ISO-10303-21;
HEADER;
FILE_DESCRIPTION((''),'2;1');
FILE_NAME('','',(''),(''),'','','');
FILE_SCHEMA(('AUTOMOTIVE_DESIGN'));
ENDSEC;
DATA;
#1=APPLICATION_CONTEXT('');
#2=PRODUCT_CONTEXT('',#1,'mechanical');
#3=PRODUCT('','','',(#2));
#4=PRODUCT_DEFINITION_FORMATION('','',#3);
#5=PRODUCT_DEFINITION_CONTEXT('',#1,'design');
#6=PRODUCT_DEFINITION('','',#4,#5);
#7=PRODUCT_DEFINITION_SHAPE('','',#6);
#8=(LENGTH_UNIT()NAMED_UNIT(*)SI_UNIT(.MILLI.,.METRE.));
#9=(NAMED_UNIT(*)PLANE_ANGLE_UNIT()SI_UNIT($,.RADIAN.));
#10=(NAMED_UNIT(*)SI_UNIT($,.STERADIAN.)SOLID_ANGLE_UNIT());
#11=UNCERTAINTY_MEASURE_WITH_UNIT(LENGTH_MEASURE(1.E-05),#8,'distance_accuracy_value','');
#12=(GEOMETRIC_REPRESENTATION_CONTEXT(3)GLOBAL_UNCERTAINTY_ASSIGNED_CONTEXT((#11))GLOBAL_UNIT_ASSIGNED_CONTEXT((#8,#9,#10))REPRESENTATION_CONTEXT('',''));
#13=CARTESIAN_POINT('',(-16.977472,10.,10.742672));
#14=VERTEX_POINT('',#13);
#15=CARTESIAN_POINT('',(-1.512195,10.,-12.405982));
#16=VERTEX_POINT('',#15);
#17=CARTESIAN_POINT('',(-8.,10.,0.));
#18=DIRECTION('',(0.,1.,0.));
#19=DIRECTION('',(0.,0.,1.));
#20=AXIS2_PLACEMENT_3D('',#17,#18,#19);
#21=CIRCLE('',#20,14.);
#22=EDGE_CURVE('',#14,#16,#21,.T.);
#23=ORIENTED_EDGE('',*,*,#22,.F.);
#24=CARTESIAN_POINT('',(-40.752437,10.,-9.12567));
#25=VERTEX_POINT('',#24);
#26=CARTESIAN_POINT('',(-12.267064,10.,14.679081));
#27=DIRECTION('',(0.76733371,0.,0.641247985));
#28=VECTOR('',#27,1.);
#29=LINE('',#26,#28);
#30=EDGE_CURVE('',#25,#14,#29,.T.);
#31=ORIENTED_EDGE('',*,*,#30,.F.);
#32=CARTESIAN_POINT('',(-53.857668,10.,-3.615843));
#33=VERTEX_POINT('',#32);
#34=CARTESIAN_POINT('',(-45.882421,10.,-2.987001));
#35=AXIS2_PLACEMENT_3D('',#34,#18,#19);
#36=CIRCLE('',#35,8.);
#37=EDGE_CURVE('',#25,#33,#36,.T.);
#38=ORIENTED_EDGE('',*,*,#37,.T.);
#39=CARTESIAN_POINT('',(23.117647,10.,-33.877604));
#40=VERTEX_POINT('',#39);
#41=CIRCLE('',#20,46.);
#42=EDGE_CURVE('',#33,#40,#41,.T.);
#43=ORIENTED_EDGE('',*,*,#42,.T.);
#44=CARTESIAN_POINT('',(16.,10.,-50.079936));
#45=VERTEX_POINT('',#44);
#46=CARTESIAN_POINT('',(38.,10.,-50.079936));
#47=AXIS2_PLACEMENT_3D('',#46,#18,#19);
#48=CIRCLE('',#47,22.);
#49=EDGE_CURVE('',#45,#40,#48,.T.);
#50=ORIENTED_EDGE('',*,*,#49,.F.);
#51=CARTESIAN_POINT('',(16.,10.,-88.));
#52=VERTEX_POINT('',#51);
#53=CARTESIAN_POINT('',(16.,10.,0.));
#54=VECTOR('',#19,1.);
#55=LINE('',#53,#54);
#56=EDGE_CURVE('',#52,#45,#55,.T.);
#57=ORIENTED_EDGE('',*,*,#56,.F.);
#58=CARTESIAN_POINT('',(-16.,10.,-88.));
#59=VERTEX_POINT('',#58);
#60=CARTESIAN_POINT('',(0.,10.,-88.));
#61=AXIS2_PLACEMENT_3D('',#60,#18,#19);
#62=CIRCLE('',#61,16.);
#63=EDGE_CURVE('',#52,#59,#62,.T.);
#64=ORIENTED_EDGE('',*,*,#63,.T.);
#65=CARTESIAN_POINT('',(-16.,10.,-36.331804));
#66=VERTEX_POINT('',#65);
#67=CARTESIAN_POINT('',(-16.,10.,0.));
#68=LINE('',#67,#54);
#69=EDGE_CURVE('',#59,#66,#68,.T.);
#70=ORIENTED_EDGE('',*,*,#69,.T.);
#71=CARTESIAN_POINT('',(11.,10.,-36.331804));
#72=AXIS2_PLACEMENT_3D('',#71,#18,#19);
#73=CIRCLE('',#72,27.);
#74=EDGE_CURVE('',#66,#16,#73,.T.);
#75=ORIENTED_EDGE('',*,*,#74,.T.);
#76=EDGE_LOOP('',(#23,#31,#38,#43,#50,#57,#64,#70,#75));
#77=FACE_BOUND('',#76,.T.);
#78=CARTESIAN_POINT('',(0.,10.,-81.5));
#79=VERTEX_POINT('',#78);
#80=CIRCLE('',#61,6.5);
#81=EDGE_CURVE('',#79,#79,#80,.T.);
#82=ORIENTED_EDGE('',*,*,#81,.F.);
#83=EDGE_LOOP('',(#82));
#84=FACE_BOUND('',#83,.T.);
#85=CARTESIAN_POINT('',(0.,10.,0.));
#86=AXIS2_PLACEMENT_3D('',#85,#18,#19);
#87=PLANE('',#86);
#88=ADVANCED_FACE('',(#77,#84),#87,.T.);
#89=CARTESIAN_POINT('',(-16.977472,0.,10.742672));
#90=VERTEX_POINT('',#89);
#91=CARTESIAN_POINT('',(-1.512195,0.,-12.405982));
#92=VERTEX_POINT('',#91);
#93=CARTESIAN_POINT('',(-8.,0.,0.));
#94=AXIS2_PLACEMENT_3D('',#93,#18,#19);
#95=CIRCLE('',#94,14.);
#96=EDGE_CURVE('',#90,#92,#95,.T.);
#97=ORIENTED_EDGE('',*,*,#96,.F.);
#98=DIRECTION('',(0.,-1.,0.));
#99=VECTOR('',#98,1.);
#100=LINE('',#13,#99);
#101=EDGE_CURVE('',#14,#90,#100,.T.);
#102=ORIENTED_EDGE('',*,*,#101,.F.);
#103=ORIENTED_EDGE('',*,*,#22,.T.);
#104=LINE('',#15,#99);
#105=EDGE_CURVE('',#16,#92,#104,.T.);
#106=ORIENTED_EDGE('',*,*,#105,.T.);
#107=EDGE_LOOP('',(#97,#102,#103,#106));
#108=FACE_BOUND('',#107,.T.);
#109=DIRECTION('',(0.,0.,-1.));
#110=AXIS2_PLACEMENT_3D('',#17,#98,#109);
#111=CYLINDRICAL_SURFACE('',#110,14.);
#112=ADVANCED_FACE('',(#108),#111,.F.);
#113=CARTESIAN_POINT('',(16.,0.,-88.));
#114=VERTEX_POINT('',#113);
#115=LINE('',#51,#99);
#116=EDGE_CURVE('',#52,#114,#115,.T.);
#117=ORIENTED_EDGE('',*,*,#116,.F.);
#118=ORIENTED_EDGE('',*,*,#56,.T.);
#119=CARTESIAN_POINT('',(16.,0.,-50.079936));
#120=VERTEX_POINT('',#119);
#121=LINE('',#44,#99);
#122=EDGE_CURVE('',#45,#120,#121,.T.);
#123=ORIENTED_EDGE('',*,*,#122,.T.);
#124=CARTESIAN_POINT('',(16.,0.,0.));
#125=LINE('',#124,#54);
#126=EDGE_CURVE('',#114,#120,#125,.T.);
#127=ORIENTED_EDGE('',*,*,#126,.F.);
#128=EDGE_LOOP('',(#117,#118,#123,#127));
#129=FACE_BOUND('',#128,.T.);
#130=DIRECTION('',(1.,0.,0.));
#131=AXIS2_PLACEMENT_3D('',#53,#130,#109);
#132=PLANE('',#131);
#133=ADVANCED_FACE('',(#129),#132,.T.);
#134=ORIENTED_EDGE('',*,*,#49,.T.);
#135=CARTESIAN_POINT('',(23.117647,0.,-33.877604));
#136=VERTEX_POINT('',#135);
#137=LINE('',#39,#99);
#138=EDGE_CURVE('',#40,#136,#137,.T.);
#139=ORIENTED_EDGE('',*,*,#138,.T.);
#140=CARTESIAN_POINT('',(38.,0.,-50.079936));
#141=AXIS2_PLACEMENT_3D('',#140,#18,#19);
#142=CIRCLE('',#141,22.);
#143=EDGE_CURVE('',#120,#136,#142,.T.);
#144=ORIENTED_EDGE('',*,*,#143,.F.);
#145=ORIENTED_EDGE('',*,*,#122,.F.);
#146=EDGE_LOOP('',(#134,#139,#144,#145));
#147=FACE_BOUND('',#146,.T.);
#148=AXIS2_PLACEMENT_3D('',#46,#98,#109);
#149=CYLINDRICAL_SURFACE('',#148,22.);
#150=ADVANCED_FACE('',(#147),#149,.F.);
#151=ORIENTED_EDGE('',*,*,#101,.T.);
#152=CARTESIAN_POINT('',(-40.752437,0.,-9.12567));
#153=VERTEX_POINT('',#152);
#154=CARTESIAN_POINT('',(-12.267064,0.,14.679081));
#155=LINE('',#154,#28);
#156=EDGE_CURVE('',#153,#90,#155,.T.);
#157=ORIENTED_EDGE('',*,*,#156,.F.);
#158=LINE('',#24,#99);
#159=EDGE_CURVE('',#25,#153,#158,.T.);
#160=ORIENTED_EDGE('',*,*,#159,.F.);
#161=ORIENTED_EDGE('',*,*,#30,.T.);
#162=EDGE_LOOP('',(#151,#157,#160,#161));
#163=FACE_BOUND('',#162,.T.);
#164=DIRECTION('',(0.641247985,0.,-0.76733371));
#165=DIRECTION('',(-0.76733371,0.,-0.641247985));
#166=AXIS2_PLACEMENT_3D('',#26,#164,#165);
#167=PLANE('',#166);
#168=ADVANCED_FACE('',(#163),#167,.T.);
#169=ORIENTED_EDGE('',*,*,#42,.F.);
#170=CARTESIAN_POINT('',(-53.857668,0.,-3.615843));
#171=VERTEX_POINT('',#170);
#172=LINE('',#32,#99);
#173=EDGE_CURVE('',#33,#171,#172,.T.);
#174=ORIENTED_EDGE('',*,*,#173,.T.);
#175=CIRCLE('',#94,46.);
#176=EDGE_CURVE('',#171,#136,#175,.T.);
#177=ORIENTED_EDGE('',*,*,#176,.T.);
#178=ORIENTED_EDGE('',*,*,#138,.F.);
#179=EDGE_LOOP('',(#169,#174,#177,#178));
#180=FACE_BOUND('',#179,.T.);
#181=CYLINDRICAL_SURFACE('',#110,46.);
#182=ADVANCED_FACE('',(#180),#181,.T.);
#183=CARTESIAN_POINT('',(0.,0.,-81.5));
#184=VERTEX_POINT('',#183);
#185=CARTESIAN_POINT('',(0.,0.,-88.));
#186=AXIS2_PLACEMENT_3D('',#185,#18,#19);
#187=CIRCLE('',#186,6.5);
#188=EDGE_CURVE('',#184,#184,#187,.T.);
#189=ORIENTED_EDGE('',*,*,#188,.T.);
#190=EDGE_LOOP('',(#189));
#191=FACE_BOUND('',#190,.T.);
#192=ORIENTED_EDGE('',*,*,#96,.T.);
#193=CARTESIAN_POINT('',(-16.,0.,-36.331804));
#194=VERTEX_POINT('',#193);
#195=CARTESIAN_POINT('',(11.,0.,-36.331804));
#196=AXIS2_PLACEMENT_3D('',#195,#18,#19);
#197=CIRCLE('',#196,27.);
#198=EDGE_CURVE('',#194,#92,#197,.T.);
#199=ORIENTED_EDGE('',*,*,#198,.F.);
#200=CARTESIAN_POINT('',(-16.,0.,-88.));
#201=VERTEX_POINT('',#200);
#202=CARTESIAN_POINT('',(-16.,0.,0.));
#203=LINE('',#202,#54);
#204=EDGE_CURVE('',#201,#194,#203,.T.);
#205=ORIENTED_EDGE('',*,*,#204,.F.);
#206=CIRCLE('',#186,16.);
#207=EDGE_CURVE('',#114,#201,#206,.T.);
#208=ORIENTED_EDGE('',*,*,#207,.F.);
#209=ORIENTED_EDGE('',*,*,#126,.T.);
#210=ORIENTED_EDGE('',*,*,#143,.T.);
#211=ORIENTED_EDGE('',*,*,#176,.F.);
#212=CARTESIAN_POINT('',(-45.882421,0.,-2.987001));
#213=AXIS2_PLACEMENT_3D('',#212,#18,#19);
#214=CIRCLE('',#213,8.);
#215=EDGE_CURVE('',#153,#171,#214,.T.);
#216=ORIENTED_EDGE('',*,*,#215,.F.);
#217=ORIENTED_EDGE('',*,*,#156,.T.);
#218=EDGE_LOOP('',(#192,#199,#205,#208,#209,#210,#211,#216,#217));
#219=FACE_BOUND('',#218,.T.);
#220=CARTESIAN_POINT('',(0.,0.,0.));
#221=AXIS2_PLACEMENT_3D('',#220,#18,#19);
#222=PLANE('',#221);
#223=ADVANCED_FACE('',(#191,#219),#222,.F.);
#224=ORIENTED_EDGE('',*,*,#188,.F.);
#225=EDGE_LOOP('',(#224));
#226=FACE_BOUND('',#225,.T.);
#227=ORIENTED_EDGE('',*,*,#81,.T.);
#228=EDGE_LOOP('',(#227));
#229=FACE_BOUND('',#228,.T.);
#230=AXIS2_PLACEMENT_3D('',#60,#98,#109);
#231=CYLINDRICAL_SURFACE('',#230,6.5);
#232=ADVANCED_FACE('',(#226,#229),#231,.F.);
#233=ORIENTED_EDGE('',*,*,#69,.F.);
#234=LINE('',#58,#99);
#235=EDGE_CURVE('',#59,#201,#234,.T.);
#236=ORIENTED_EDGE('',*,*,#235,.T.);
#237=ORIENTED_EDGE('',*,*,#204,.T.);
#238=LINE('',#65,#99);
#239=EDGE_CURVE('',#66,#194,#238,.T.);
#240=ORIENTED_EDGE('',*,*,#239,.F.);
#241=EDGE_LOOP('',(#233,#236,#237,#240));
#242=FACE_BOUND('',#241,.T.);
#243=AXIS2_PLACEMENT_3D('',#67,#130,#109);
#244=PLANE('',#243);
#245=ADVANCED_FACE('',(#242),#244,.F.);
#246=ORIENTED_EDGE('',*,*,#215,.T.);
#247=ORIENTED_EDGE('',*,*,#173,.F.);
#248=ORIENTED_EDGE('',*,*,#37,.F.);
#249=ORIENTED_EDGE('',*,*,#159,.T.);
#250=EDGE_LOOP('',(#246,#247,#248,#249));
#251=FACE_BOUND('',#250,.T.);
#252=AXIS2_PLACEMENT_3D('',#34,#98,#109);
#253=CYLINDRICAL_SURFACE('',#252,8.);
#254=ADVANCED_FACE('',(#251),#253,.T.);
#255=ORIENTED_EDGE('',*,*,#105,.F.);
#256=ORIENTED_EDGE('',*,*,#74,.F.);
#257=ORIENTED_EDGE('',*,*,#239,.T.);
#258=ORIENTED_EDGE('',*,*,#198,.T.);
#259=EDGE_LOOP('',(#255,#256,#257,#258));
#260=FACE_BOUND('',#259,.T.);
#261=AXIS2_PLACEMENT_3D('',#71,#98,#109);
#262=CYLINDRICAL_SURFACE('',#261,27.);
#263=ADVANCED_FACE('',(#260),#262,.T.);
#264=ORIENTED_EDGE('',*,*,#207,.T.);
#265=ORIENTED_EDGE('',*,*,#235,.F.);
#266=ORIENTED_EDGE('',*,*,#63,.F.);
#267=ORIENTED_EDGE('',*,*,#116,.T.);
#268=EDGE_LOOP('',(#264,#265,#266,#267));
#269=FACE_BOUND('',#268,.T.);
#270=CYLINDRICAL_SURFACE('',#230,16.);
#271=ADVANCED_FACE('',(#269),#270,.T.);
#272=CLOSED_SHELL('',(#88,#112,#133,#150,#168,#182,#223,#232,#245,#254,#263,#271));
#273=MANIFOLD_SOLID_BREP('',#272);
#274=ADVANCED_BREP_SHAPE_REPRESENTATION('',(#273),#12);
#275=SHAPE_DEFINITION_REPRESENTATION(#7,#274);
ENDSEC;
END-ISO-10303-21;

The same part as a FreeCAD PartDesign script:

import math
import FreeCAD as App
import Part
import Sketcher
Q = App.Units.Quantity

doc = App.newDocument("Part")
params = doc.addObject("Spreadsheet::Sheet", "Params")
for row, (alias, value) in enumerate([
    ("sketch1_diameter", "13 mm"),
    ("sketch1_radius", "16 mm"),
    ("sketch1_radius2", "27 mm"),
    ("sketch1_radius3", "14 mm"),
    ("sketch1_radius4", "8 mm"),
    ("pad1_length", "10 mm"),
], start=1):
    params.set(f"A{row}", alias)
    params.set(f"B{row}", "=" + value)
    params.setAlias(f"B{row}", alias)

body = doc.addObject("PartDesign::Body", "Body")

# Sketch on XZ plane
sketch1 = body.newObject("Sketcher::SketchObject", "Sketch")
sketch1.AttachmentSupport = (doc.getObject("XZ_Plane"), [""])
sketch1.MapMode = "FlatFace"
sketch1.addGeometry([
    Part.LineSegment(App.Vector(16, -50, 0), App.Vector(16, -88, 0)),  # 0
    Part.ArcOfCircle(Part.Circle(App.Vector(0, -88, 0), App.Vector(0, 0, 1), 16), math.radians(180), math.radians(360)),  # 1
    Part.LineSegment(App.Vector(-16, -88, 0), App.Vector(-16, -36, 0)),  # 2
    Part.ArcOfCircle(Part.Circle(App.Vector(11, -36, 0), App.Vector(0, 0, 1), 27), math.radians(118), math.radians(180)),  # 3
    Part.ArcOfCircle(Part.Circle(App.Vector(-8, 0, 0), App.Vector(0, 0, 1), 14), math.radians(-62), math.radians(130)),  # 4
    Part.LineSegment(App.Vector(-17, 11, 0), App.Vector(-41, -9, 0)),  # 5
    Part.ArcOfCircle(Part.Circle(App.Vector(-46, -3, 0), App.Vector(0, 0, 1), 8), math.radians(-175), math.radians(-50)),  # 6
    Part.ArcOfCircle(Part.Circle(App.Vector(-8, 0, 0), App.Vector(0, 0, 1), 46), math.radians(-47), math.radians(185)),  # 7
    Part.ArcOfCircle(Part.Circle(App.Vector(38, -50, 0), App.Vector(0, 0, 1), 22), math.radians(133), math.radians(180)),  # 8
    Part.Circle(App.Vector(0, -88, 0), App.Vector(0, 0, 1), 6),  # 9
], False)
sketch1.addConstraint([
    Sketcher.Constraint("Tangent", 0, 2, 1, 2),
    Sketcher.Constraint("Tangent", 1, 1, 2, 1),
    Sketcher.Constraint("Tangent", 2, 2, 3, 2),
    Sketcher.Constraint("Tangent", 3, 1, 4, 1),
    Sketcher.Constraint("Tangent", 4, 2, 5, 1),
    Sketcher.Constraint("Tangent", 5, 2, 6, 2),
    Sketcher.Constraint("Tangent", 6, 1, 7, 2),
    Sketcher.Constraint("Tangent", 7, 1, 8, 1),
    Sketcher.Constraint("Tangent", 8, 2, 0, 1),
    Sketcher.Constraint("Vertical", 0),
    Sketcher.Constraint("Vertical", 2),
    Sketcher.Constraint("Coincident", 7, 3, 4, 3),
    Sketcher.Constraint("Coincident", 9, 3, 1, 3),
    Sketcher.Constraint("PointOnObject", 1, 3, -2),
    Sketcher.Constraint("PointOnObject", 4, 3, -1),
    Sketcher.Constraint("Diameter", 9, Q("13 mm")),
    Sketcher.Constraint("Radius", 1, Q("16 mm")),
    Sketcher.Constraint("Radius", 3, Q("27 mm")),
    Sketcher.Constraint("Radius", 4, Q("14 mm")),
    Sketcher.Constraint("Radius", 6, Q("8 mm")),
    Sketcher.Constraint("Radius", 7, Q("46 mm")),
    Sketcher.Constraint("Radius", 8, Q("22 mm")),
    Sketcher.Constraint("DistanceY", 1, 3, -1, 1, Q("88 mm")),
    Sketcher.Constraint("DistanceX", 4, 3, -1, 1, Q("8 mm")),
    Sketcher.Constraint("DistanceY", 6, 3, -1, 1, Q("2.987001 mm")),
])
sketch1.setExpression("Constraints[15]", "Params.sketch1_diameter")
sketch1.setExpression("Constraints[16]", "Params.sketch1_radius")
sketch1.setExpression("Constraints[17]", "Params.sketch1_radius2")
sketch1.setExpression("Constraints[18]", "Params.sketch1_radius3")
sketch1.setExpression("Constraints[19]", "Params.sketch1_radius4")
pad1 = body.newObject("PartDesign::Pad", "Pad")
pad1.Profile = sketch1
pad1.setExpression("Length", "Params.pad1_length")
pad1.Reversed = True

doc.recompute()
